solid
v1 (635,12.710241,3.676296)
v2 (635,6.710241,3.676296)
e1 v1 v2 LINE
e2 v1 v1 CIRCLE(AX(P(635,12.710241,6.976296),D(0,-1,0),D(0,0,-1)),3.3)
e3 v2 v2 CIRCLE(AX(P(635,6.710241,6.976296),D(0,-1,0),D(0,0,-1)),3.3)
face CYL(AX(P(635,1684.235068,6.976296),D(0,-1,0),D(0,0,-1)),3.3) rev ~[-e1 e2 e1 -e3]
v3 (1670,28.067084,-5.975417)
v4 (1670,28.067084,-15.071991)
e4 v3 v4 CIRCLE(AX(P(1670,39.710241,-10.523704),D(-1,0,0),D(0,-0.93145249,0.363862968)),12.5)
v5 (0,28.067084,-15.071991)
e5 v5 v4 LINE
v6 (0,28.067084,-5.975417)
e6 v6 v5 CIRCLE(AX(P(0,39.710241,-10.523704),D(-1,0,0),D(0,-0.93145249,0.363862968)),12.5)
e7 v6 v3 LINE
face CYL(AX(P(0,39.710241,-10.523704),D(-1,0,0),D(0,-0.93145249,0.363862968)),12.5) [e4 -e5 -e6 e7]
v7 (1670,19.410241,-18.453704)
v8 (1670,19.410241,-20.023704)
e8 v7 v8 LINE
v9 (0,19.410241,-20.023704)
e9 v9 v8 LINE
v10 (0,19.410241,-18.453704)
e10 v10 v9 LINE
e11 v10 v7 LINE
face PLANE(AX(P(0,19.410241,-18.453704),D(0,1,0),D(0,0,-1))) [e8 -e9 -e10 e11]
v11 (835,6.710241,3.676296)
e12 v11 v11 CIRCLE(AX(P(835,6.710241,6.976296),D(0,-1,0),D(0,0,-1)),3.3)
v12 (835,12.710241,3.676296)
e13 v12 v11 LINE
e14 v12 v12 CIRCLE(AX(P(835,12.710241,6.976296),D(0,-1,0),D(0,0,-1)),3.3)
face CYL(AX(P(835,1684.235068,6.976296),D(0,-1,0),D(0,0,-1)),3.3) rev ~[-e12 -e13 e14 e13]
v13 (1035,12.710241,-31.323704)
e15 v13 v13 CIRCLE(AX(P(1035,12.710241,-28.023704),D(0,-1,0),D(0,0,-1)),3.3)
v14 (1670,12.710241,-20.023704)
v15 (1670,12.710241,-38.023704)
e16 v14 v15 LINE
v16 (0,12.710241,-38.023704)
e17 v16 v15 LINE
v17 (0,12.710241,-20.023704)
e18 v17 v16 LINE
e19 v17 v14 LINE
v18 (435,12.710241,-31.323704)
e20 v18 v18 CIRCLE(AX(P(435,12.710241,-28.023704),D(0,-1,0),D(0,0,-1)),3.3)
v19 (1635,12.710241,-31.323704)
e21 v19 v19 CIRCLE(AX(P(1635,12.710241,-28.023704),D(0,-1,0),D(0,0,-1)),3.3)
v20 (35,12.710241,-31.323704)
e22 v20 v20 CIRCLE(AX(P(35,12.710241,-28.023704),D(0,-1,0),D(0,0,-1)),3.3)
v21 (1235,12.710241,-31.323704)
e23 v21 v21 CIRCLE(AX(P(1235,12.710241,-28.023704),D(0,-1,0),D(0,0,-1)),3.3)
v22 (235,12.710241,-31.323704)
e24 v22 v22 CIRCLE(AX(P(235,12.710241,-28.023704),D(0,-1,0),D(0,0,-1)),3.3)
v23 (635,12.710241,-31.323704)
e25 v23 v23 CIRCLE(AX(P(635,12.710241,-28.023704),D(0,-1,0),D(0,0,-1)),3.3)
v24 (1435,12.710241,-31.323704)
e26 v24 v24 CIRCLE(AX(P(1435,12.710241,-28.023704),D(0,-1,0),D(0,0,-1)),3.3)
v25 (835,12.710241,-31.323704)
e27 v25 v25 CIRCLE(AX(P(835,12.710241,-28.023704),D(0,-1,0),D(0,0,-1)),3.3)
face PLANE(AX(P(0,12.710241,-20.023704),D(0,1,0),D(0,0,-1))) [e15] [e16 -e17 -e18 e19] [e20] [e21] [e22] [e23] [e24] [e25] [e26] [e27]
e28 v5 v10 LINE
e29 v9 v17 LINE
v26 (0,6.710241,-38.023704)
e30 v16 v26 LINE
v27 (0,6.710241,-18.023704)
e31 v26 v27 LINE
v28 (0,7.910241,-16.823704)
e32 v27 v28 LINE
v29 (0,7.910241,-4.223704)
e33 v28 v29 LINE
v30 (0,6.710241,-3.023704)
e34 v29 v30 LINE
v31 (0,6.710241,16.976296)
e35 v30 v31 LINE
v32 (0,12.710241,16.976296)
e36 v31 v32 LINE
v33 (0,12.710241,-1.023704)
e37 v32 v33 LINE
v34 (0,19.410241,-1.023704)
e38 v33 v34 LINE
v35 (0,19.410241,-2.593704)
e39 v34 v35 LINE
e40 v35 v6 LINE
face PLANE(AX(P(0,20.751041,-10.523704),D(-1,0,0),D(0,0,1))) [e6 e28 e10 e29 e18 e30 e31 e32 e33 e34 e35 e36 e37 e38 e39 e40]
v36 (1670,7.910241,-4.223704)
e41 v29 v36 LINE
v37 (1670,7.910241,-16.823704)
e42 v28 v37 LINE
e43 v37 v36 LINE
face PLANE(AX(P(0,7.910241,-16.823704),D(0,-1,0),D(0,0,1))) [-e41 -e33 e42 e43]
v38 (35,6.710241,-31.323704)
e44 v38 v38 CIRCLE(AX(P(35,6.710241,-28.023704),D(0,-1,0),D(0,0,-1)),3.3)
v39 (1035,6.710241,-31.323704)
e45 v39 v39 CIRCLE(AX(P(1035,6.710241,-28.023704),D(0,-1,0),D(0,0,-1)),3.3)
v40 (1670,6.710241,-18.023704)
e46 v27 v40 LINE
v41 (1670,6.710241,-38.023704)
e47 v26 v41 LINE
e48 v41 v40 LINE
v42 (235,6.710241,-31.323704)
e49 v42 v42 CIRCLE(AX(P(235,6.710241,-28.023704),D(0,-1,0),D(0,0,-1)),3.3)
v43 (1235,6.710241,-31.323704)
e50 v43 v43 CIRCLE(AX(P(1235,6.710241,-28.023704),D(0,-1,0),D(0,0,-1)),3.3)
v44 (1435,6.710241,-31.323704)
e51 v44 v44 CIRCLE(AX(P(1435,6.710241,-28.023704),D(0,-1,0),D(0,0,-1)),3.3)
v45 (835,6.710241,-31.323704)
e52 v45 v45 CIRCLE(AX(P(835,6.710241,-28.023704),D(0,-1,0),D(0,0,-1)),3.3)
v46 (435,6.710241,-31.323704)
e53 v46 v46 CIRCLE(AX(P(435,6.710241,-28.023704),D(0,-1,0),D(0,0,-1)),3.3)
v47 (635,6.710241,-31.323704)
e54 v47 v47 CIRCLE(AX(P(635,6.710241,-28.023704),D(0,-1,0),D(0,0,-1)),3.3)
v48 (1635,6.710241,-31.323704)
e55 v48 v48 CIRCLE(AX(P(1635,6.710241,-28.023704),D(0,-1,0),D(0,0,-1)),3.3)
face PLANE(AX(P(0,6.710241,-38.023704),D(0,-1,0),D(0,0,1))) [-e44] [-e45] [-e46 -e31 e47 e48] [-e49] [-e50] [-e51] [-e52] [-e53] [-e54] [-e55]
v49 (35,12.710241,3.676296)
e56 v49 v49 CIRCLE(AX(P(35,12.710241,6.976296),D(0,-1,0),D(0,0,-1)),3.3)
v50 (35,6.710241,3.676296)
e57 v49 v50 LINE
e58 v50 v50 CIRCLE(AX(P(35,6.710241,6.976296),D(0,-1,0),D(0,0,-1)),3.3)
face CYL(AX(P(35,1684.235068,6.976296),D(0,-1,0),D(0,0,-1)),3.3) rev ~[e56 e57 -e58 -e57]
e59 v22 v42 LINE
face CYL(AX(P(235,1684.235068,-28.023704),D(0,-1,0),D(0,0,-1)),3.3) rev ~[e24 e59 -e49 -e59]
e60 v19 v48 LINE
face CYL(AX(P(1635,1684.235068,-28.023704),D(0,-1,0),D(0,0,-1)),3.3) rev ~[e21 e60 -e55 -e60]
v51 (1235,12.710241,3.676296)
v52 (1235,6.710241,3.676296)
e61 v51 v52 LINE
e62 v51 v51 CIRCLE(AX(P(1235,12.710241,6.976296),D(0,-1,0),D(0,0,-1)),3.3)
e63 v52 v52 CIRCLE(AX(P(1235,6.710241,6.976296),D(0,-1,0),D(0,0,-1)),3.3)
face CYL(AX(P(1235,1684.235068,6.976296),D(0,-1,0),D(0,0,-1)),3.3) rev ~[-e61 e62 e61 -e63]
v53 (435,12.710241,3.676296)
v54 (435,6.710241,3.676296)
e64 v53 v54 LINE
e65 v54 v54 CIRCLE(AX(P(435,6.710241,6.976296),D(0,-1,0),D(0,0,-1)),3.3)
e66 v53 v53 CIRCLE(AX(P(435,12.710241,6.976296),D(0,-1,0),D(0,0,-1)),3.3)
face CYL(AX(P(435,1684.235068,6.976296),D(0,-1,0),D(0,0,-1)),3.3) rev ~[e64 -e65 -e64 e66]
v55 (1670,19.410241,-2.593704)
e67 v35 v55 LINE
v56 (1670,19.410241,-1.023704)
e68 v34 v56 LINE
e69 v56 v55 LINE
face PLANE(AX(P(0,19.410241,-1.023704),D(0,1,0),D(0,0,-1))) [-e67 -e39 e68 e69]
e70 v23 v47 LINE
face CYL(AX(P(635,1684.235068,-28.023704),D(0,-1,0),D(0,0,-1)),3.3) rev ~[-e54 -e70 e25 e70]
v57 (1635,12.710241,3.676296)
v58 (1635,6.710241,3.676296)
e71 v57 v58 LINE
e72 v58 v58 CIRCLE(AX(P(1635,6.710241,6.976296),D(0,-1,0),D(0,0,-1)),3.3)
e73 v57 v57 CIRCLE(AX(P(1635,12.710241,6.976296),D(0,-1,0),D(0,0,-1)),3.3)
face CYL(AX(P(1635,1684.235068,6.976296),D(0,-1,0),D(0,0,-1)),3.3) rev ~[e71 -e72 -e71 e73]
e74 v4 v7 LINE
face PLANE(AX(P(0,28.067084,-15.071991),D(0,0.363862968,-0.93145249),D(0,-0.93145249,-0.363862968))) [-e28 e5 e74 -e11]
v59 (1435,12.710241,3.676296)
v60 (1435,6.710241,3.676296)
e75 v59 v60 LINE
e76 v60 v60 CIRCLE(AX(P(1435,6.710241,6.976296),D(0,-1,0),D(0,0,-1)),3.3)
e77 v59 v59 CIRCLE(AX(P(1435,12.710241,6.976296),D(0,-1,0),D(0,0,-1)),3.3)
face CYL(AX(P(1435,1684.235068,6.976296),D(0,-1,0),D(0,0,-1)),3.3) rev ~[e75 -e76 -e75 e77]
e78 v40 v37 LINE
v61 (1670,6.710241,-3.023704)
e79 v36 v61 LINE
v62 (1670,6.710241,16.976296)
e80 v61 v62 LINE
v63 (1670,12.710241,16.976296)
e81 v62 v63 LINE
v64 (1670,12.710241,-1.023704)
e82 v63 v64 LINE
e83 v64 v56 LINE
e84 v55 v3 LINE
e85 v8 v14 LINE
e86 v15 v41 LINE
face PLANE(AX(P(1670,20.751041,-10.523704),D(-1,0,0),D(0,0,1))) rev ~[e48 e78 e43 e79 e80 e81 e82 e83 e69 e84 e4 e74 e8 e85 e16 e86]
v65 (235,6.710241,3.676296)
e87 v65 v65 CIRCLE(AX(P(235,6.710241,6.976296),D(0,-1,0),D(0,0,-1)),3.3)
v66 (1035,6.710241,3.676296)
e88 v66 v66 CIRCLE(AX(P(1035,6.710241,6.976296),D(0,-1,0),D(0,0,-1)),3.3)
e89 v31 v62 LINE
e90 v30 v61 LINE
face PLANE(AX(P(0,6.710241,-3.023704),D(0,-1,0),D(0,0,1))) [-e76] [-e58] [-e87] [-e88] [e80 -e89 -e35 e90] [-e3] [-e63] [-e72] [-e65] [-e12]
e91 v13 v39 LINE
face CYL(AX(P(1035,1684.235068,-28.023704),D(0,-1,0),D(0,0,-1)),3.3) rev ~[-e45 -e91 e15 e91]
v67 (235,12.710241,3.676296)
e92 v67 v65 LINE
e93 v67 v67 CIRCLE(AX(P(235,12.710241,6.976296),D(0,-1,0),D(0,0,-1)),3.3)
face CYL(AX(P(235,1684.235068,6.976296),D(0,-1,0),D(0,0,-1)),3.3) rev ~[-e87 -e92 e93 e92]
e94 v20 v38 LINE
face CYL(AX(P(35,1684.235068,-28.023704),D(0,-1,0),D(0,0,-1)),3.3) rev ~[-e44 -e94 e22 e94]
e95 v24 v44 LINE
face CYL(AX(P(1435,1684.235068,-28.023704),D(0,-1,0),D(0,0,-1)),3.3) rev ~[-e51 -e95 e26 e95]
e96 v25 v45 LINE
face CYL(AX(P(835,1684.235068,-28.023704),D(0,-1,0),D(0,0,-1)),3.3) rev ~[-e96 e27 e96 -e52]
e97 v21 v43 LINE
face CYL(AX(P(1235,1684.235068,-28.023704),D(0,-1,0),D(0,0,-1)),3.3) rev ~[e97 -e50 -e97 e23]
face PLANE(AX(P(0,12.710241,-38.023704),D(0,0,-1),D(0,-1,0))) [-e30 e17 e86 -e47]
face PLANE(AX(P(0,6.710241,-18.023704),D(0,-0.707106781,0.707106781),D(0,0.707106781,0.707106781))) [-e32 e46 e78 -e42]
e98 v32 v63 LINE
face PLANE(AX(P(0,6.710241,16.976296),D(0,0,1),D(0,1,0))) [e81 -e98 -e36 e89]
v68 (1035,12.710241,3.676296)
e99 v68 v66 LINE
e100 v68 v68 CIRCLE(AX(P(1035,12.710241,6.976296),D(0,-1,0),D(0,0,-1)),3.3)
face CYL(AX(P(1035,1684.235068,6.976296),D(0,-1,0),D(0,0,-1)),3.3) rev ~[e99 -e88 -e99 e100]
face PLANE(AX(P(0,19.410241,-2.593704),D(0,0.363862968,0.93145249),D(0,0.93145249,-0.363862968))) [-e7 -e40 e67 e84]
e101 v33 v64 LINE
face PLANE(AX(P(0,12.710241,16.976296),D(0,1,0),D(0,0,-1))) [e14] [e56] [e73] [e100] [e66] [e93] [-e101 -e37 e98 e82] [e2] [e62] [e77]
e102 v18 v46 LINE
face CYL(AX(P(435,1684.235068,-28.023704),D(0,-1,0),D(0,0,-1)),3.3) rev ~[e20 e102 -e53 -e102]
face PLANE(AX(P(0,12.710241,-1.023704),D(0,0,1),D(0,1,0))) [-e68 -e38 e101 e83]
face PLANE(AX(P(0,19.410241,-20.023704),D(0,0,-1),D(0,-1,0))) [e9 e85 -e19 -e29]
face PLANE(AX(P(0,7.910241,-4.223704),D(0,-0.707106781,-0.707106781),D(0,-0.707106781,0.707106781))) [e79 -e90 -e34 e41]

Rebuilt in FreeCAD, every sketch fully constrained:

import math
import FreeCAD as App
import Part
import Sketcher

V = App.Vector
Q = App.Units.Quantity

doc = App.newDocument("Part")
body = doc.addObject("PartDesign::Body", "Body")

# Sketch on YZ plane
sketch1 = body.newObject("Sketcher::SketchObject", "Sketch")
sketch1.AttachmentSupport = (doc.getObject("YZ_Plane"), [""])
sketch1.MapMode = "FlatFace"
sketch1.addGeometry([
    Part.LineSegment(V(6.7, -38, 0), V(12.7, -38, 0)),  # 0
    Part.LineSegment(V(12.7, -38, 0), V(12.7, -20, 0)),  # 1
    Part.LineSegment(V(12.7, -20, 0), V(19.4, -20, 0)),  # 2
    Part.LineSegment(V(19.4, -20, 0), V(19.4, -18.5, 0)),  # 3
    Part.LineSegment(V(19.4, -18.5, 0), V(28.1, -15.1, 0)),  # 4
    Part.ArcOfCircle(Part.Circle(V(39.7, -10.5, 0), V(0, 0, 1), 12.5), math.radians(-159), math.radians(159)),  # 5
    Part.LineSegment(V(28.1, -6, 0), V(19.4, -2.6, 0)),  # 6
    Part.LineSegment(V(19.4, -2.6, 0), V(19.4, -1, 0)),  # 7
    Part.LineSegment(V(19.4, -1, 0), V(12.7, -1, 0)),  # 8
    Part.LineSegment(V(12.7, -1, 0), V(12.7, 17, 0)),  # 9
    Part.LineSegment(V(12.7, 17, 0), V(6.7, 17, 0)),  # 10
    Part.LineSegment(V(6.7, 17, 0), V(6.7, -3, 0)),  # 11
    Part.LineSegment(V(6.7, -3, 0), V(7.9, -4.2, 0)),  # 12
    Part.LineSegment(V(7.9, -4.2, 0), V(7.9, -16.8, 0)),  # 13
    Part.LineSegment(V(7.9, -16.8, 0), V(6.7, -18, 0)),  # 14
    Part.LineSegment(V(6.7, -18, 0), V(6.7, -38, 0)),  # 15
], False)
sketch1.addConstraint([
    Sketcher.Constraint("Coincident", 0, 2, 1, 1),
    Sketcher.Constraint("Coincident", 1, 2, 2, 1),
    Sketcher.Constraint("Coincident", 2, 2, 3, 1),
    Sketcher.Constraint("Coincident", 3, 2, 4, 1),
    Sketcher.Constraint("Coincident", 4, 2, 5, 1),
    Sketcher.Constraint("Coincident", 5, 2, 6, 1),
    Sketcher.Constraint("Coincident", 6, 2, 7, 1),
    Sketcher.Constraint("Coincident", 7, 2, 8, 1),
    Sketcher.Constraint("Coincident", 8, 2, 9, 1),
    Sketcher.Constraint("Coincident", 9, 2, 10, 1),
    Sketcher.Constraint("Coincident", 10, 2, 11, 1),
    Sketcher.Constraint("Coincident", 11, 2, 12, 1),
    Sketcher.Constraint("Coincident", 12, 2, 13, 1),
    Sketcher.Constraint("Coincident", 13, 2, 14, 1),
    Sketcher.Constraint("Coincident", 14, 2, 15, 1),
    Sketcher.Constraint("Coincident", 15, 2, 0, 1),
    Sketcher.Constraint("Horizontal", 0),
    Sketcher.Constraint("Vertical", 1),
    Sketcher.Constraint("Horizontal", 2),
    Sketcher.Constraint("Vertical", 3),
    Sketcher.Constraint("Vertical", 7),
    Sketcher.Constraint("Horizontal", 8),
    Sketcher.Constraint("Vertical", 9),
    Sketcher.Constraint("Horizontal", 10),
    Sketcher.Constraint("Vertical", 11),
    Sketcher.Constraint("Vertical", 13),
    Sketcher.Constraint("Vertical", 15),
    Sketcher.Constraint("Perpendicular", 12, 14),
    Sketcher.Constraint("Vertical", 4, 2, 5, 2),
    Sketcher.Constraint("Vertical", 3, 2, 6, 2),
    Sketcher.Constraint("Vertical", 1, 2, 8, 2),
    Sketcher.Constraint("Vertical", 11, 2, 14, 2),
    Sketcher.Constraint("Equal", 3, 7),
    Sketcher.Constraint("Equal", 1, 9),
    Sketcher.Constraint("Equal", 11, 15),
    Sketcher.Constraint("Equal", 4, 6),
    Sketcher.Constraint("Equal", 12, 14),
    Sketcher.Constraint("Radius", 5, Q("12.5 mm")),
    Sketcher.Constraint("DistanceX", 0, 1, 0, 2, Q("6 mm")),
    Sketcher.Constraint("DistanceY", 1, 1, 1, 2, Q("18 mm")),
    Sketcher.Constraint("DistanceY", 11, 2, 11, 1, Q("20 mm")),
    Sketcher.Constraint("DistanceX", 2, 1, 2, 2, Q("6.7 mm")),
    Sketcher.Constraint("DistanceY", 13, 2, 13, 1, Q("12.6 mm")),
    Sketcher.Constraint("DistanceX", 0, 2, 5, 3, Q("27 mm")),
    Sketcher.Constraint("DistanceY", 2, 2, 7, 2, Q("19 mm")),
    Sketcher.Constraint("DistanceY", 3, 1, 3, 2, Q("1.57 mm")),
    Sketcher.Constraint("DistanceX", -1, 1, 5, 3, Q("39.710241 mm")),
    Sketcher.Constraint("DistanceY", 4, 2, -1, 1, Q("15.071991 mm")),
    Sketcher.Constraint("DistanceY", 5, 3, -1, 1, Q("10.523704 mm")),
])
pad1 = body.newObject("PartDesign::Pad", "Pad")
pad1.Profile = sketch1
pad1.Length = 1670

# Sketch on XZ plane
sketch2 = body.newObject("Sketcher::SketchObject", "Sketch001")
sketch2.AttachmentSupport = (doc.getObject("XZ_Plane"), [""])
sketch2.MapMode = "FlatFace"
sketch2.AttachmentOffset = App.Placement(V(0, 0, -12.710241), App.Rotation())
sketch2.addGeometry([
    Part.Circle(V(35, -28, 0), V(0, 0, 1), 3.3),
    Part.Circle(V(35, 7, 0), V(0, 0, 1), 3.3),
], False)
sketch2.addConstraint([
    Sketcher.Constraint("Equal", 0, 1),
    Sketcher.Constraint("Vertical", 0, 3, 1, 3),
    Sketcher.Constraint("Diameter", 0, Q("6.6 mm")),
    Sketcher.Constraint("DistanceX", -1, 1, 0, 3, Q("35 mm")),
    Sketcher.Constraint("DistanceY", 0, 3, 1, 3, Q("35 mm")),
    Sketcher.Constraint("DistanceY", 0, 3, -1, 1, Q("28.023704 mm")),
])
doc.recompute()
hole = body.newObject("PartDesign::Hole", "Hole")
hole.Profile = sketch2
hole.ThreadType = "None"
hole.Diameter = 6.6
hole.DepthType = "ThroughAll"
hole.Reversed = True
doc.recompute()

linearpattern = body.newObject("PartDesign::LinearPattern", "LinearPattern")
linearpattern.Originals = [hole]
linearpattern.Direction = (doc.getObject("X_Axis"), [""])
linearpattern.Mode = "offset"
linearpattern.Offset = 200
linearpattern.Occurrences = 9
body.Tip = linearpattern

doc.recompute()
